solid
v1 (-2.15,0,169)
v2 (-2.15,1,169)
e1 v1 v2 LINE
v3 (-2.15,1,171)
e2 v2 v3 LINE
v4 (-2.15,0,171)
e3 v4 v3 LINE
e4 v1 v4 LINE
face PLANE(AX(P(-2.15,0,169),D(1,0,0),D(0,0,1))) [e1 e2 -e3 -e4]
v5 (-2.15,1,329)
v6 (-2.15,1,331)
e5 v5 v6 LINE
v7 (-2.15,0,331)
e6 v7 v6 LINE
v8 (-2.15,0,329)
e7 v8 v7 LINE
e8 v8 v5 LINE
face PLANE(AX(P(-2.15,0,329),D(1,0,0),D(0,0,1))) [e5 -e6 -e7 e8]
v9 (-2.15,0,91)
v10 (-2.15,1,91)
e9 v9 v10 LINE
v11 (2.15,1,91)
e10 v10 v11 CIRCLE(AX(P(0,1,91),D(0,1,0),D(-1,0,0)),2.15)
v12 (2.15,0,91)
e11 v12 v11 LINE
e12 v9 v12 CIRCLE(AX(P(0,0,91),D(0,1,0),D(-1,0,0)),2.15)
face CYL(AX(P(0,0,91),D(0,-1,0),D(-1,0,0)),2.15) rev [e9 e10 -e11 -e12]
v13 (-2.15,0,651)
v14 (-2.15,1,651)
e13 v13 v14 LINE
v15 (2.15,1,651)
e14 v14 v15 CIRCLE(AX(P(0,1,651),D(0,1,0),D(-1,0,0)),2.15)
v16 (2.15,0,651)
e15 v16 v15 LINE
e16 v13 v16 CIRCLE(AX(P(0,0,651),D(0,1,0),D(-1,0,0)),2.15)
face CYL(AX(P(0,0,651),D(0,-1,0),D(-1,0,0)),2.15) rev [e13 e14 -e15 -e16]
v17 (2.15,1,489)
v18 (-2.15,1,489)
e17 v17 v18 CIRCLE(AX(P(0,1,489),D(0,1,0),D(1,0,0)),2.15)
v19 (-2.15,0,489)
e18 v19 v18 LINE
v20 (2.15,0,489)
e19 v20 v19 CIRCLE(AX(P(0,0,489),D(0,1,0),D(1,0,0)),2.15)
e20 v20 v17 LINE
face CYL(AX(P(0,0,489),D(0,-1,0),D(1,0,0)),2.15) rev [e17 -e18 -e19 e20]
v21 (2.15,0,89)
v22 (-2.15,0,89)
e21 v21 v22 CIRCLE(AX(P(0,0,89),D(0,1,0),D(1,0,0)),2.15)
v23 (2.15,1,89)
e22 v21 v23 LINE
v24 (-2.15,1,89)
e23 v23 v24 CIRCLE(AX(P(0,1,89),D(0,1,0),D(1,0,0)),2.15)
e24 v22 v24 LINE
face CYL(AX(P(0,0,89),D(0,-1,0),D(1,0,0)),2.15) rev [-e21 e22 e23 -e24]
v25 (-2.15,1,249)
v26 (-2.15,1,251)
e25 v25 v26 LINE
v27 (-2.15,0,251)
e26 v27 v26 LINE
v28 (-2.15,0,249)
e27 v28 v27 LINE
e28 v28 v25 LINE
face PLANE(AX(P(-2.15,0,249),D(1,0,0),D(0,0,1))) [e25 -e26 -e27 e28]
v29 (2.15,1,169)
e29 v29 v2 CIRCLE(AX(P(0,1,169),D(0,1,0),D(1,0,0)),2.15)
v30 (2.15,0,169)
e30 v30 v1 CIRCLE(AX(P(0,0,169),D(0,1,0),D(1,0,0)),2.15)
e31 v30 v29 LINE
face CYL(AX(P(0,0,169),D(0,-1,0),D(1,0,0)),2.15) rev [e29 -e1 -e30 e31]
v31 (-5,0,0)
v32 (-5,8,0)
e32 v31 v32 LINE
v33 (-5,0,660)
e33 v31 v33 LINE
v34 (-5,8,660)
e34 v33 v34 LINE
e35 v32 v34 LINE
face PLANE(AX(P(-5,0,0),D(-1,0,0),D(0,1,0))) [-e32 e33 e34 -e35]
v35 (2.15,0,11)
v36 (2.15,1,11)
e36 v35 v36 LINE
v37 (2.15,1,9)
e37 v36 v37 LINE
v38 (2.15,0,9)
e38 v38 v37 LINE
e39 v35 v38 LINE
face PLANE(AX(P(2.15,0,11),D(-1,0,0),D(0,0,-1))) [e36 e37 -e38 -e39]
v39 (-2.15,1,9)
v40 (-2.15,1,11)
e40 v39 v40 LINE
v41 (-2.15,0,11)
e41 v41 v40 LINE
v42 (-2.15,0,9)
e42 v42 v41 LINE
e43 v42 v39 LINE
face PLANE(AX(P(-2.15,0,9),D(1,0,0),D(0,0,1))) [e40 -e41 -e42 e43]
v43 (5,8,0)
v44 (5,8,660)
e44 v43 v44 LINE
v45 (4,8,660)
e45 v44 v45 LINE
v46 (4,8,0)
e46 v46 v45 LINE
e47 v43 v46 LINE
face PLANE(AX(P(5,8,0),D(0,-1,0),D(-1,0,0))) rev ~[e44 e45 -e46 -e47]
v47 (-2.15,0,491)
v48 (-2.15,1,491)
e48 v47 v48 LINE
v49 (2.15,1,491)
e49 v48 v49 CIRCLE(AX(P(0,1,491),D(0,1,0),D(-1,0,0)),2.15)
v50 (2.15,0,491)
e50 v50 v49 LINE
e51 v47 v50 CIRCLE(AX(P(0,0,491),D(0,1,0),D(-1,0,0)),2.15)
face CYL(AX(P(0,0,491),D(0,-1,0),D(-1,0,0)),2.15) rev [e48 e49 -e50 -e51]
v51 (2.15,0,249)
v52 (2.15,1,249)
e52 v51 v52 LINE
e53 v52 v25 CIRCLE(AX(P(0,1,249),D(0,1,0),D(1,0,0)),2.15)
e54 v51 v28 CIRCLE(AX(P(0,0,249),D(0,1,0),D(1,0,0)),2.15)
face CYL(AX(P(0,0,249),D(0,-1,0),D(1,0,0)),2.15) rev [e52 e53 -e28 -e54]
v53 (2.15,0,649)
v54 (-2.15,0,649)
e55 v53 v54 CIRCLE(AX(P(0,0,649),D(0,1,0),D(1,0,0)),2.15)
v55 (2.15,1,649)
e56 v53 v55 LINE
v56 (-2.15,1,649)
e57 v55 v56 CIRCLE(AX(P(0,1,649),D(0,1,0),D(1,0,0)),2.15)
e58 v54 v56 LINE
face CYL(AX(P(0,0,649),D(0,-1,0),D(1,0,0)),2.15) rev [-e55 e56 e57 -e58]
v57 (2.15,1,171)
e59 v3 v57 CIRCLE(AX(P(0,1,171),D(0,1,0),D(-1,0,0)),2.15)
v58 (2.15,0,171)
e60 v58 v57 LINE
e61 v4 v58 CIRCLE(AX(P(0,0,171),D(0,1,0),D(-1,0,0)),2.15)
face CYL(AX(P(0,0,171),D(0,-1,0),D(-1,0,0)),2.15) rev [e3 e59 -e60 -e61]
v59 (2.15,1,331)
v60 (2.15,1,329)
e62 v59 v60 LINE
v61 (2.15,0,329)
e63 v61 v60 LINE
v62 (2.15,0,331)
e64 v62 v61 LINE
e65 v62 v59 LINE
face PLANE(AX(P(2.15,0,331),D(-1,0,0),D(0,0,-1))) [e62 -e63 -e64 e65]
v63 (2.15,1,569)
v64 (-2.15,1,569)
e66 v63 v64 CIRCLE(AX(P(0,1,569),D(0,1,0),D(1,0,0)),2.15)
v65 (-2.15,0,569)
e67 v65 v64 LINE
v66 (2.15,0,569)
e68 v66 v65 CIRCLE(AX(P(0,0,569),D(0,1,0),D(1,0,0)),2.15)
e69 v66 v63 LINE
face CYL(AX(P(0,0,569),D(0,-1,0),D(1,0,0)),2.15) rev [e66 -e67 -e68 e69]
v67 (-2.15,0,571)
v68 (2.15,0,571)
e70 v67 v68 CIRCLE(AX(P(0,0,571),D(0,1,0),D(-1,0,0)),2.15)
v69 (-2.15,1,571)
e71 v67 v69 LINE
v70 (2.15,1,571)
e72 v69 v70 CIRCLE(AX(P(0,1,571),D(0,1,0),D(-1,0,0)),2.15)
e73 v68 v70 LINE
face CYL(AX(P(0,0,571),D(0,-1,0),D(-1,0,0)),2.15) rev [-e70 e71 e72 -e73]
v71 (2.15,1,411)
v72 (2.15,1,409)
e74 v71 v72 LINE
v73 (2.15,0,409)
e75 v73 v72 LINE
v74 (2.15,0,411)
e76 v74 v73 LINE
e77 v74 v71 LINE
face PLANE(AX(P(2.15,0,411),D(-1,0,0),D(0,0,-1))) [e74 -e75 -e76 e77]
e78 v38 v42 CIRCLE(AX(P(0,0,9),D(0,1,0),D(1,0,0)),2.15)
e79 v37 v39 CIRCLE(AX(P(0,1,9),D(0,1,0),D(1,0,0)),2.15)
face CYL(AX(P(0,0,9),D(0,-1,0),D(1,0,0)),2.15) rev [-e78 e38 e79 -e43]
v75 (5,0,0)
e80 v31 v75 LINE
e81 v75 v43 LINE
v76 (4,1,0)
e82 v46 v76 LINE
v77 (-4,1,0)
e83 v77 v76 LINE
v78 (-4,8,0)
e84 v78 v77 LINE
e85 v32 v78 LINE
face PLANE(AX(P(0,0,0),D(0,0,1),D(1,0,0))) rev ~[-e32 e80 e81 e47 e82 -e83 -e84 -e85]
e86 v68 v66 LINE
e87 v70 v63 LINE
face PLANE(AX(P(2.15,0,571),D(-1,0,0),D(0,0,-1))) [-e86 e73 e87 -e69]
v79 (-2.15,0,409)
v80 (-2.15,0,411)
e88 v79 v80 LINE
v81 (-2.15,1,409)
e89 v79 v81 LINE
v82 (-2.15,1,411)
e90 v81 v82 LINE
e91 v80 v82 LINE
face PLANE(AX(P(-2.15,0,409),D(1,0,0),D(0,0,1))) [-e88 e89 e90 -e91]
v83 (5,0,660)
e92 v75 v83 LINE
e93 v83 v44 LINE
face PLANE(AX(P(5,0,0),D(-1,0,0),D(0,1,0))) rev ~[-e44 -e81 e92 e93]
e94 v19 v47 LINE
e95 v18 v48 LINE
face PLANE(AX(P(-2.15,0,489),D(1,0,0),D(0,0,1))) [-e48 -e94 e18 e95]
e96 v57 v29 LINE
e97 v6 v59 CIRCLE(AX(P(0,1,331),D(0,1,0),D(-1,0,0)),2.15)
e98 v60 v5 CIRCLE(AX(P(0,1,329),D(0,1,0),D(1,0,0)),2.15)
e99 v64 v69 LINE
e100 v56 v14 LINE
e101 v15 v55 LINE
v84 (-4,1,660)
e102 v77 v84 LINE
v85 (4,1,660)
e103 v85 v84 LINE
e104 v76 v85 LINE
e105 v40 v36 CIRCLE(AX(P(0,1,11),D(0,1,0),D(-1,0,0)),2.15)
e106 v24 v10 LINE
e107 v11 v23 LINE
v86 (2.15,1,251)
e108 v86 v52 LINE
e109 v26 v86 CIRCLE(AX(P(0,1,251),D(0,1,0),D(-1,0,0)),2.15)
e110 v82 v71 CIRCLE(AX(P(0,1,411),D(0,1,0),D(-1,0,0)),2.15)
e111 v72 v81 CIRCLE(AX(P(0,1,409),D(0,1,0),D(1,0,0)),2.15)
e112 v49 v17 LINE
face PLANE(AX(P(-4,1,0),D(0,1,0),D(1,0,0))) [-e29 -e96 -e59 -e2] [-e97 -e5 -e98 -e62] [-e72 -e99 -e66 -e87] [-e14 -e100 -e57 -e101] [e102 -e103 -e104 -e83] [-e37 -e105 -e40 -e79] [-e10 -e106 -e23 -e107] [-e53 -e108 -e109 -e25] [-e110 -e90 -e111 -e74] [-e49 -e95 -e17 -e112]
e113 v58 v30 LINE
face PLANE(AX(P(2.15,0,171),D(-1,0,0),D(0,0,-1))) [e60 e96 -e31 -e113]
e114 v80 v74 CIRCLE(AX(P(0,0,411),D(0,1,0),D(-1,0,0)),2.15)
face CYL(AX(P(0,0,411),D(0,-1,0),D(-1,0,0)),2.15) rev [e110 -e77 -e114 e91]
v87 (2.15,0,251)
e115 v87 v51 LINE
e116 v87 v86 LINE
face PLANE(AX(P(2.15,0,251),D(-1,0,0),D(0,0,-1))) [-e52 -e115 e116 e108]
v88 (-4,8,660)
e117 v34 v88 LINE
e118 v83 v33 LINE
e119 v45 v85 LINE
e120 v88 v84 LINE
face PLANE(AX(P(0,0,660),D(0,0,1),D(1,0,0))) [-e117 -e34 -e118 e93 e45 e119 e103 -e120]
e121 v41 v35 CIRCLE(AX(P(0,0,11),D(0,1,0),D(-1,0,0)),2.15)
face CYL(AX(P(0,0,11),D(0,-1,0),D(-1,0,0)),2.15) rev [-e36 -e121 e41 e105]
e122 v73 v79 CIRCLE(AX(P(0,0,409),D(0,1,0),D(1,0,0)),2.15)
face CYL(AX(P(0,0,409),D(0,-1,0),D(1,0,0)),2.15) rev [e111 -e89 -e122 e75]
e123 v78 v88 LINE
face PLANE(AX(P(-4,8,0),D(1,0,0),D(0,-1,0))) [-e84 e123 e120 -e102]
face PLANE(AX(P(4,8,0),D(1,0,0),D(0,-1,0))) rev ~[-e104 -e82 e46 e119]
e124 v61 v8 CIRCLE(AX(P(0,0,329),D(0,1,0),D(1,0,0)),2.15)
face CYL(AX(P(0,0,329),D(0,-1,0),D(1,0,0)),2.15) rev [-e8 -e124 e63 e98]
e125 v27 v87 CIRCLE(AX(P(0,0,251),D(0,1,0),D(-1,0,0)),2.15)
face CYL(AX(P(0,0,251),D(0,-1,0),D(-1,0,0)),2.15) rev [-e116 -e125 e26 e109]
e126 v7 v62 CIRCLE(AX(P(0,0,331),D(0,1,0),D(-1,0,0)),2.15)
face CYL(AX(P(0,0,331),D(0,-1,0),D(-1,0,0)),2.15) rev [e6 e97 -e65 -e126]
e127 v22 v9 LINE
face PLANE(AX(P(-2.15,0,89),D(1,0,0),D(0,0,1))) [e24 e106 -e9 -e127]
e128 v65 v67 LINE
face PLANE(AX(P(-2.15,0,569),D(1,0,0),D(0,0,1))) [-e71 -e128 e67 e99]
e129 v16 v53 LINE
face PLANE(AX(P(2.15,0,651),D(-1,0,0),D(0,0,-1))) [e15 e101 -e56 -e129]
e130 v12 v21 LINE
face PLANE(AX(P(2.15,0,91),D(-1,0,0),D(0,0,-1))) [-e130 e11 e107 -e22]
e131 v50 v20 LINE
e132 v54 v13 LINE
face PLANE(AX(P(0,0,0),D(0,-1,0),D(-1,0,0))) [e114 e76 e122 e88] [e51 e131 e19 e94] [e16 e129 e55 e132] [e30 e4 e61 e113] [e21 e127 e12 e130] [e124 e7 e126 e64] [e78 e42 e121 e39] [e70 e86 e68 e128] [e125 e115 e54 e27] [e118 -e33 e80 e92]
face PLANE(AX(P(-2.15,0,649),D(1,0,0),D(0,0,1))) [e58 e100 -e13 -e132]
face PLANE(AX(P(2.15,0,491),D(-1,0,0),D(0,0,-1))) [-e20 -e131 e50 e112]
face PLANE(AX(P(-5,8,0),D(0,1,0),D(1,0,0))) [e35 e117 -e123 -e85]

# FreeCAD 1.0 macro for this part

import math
import FreeCAD as App
import Part
import Sketcher
Q = App.Units.Quantity

doc = App.newDocument("Part")
body = doc.addObject("PartDesign::Body", "Body")

# Sketch on XY plane
sketch1 = body.newObject("Sketcher::SketchObject", "Sketch")
sketch1.AttachmentSupport = (doc.getObject("XY_Plane"), [""])
sketch1.MapMode = "FlatFace"
sketch1.addGeometry([
    Part.LineSegment(App.Vector(-5, 0, 0), App.Vector(5, 0, 0)),  # 0
    Part.LineSegment(App.Vector(5, 0, 0), App.Vector(5, 8, 0)),  # 1
    Part.LineSegment(App.Vector(5, 8, 0), App.Vector(4, 8, 0)),  # 2
    Part.LineSegment(App.Vector(4, 8, 0), App.Vector(4, 1, 0)),  # 3
    Part.LineSegment(App.Vector(4, 1, 0), App.Vector(-4, 1, 0)),  # 4
    Part.LineSegment(App.Vector(-4, 1, 0), App.Vector(-4, 8, 0)),  # 5
    Part.LineSegment(App.Vector(-4, 8, 0), App.Vector(-5, 8, 0)),  # 6
    Part.LineSegment(App.Vector(-5, 8, 0), App.Vector(-5, 0, 0)),  # 7
], False)
sketch1.addConstraint([
    Sketcher.Constraint("Coincident", 0, 2, 1, 1),
    Sketcher.Constraint("Coincident", 1, 2, 2, 1),
    Sketcher.Constraint("Coincident", 2, 2, 3, 1),
    Sketcher.Constraint("Coincident", 3, 2, 4, 1),
    Sketcher.Constraint("Coincident", 4, 2, 5, 1),
    Sketcher.Constraint("Coincident", 5, 2, 6, 1),
    Sketcher.Constraint("Coincident", 6, 2, 7, 1),
    Sketcher.Constraint("Coincident", 7, 2, 0, 1),
    Sketcher.Constraint("Horizontal", 0),
    Sketcher.Constraint("Vertical", 1),
    Sketcher.Constraint("Horizontal", 2),
    Sketcher.Constraint("Vertical", 3),
    Sketcher.Constraint("Horizontal", 4),
    Sketcher.Constraint("Vertical", 5),
    Sketcher.Constraint("Horizontal", 6),
    Sketcher.Constraint("Vertical", 7),
    Sketcher.Constraint("Symmetric", 0, 2, 7, 2, -1, 1),
    Sketcher.Constraint("Symmetric", 2, 2, 5, 2, -2),
    Sketcher.Constraint("Equal", 4, 1),
    Sketcher.Constraint("DistanceX", 2, 2, 2, 1, Q("1 mm")),
    Sketcher.Constraint("DistanceX", 4, 2, 4, 1, Q("8 mm")),
    Sketcher.Constraint("DistanceY", -1, 1, 3, 2, Q("1 mm")),
])
pad1 = body.newObject("PartDesign::Pad", "Pad")
pad1.Profile = sketch1
pad1.Length = 660

# Sketch on XZ plane
sketch2 = body.newObject("Sketcher::SketchObject", "Sketch001")
sketch2.AttachmentSupport = (doc.getObject("XZ_Plane"), [""])
sketch2.MapMode = "FlatFace"
sketch2.addGeometry([
    Part.ArcOfCircle(Part.Circle(App.Vector(0, 651, 0), App.Vector(0, 0, 1), 2.15), math.radians(0), math.radians(180)),  # 0
    Part.LineSegment(App.Vector(2.15, 651, 0), App.Vector(2.15, 649, 0)),  # 1
    Part.ArcOfCircle(Part.Circle(App.Vector(0, 649, 0), App.Vector(0, 0, 1), 2.15), math.radians(180), math.radians(360)),  # 2
    Part.LineSegment(App.Vector(-2.15, 649, 0), App.Vector(-2.15, 651, 0)),  # 3
    Part.ArcOfCircle(Part.Circle(App.Vector(0, 571, 0), App.Vector(0, 0, 1), 2.15), math.radians(0), math.radians(180)),  # 4
    Part.LineSegment(App.Vector(2.15, 571, 0), App.Vector(2.15, 569, 0)),  # 5
    Part.ArcOfCircle(Part.Circle(App.Vector(0, 569, 0), App.Vector(0, 0, 1), 2.15), math.radians(180), math.radians(360)),  # 6
    Part.LineSegment(App.Vector(-2.15, 569, 0), App.Vector(-2.15, 571, 0)),  # 7
    Part.ArcOfCircle(Part.Circle(App.Vector(0, 491, 0), App.Vector(0, 0, 1), 2.15), math.radians(0), math.radians(180)),  # 8
    Part.LineSegment(App.Vector(2.15, 491, 0), App.Vector(2.15, 489, 0)),  # 9
    Part.ArcOfCircle(Part.Circle(App.Vector(0, 489, 0), App.Vector(0, 0, 1), 2.15), math.radians(180), math.radians(360)),  # 10
    Part.LineSegment(App.Vector(-2.15, 489, 0), App.Vector(-2.15, 491, 0)),  # 11
    Part.ArcOfCircle(Part.Circle(App.Vector(0, 411, 0), App.Vector(0, 0, 1), 2.15), math.radians(0), math.radians(180)),  # 12
    Part.LineSegment(App.Vector(2.15, 411, 0), App.Vector(2.15, 409, 0)),  # 13
    Part.ArcOfCircle(Part.Circle(App.Vector(0, 409, 0), App.Vector(0, 0, 1), 2.15), math.radians(180), math.radians(360)),  # 14
    Part.LineSegment(App.Vector(-2.15, 409, 0), App.Vector(-2.15, 411, 0)),  # 15
    Part.ArcOfCircle(Part.Circle(App.Vector(0, 331, 0), App.Vector(0, 0, 1), 2.15), math.radians(0), math.radians(180)),  # 16
    Part.LineSegment(App.Vector(2.15, 331, 0), App.Vector(2.15, 329, 0)),  # 17
    Part.ArcOfCircle(Part.Circle(App.Vector(0, 329, 0), App.Vector(0, 0, 1), 2.15), math.radians(180), math.radians(360)),  # 18
    Part.LineSegment(App.Vector(-2.15, 329, 0), App.Vector(-2.15, 331, 0)),  # 19
    Part.ArcOfCircle(Part.Circle(App.Vector(0, 251, 0), App.Vector(0, 0, 1), 2.15), math.radians(0), math.radians(180)),  # 20
    Part.LineSegment(App.Vector(2.15, 251, 0), App.Vector(2.15, 249, 0)),  # 21
    Part.ArcOfCircle(Part.Circle(App.Vector(0, 249, 0), App.Vector(0, 0, 1), 2.15), math.radians(180), math.radians(360)),  # 22
    Part.LineSegment(App.Vector(-2.15, 249, 0), App.Vector(-2.15, 251, 0)),  # 23
    Part.ArcOfCircle(Part.Circle(App.Vector(0, 171, 0), App.Vector(0, 0, 1), 2.15), math.radians(0), math.radians(180)),  # 24
    Part.LineSegment(App.Vector(2.15, 171, 0), App.Vector(2.15, 169, 0)),  # 25
    Part.ArcOfCircle(Part.Circle(App.Vector(0, 169, 0), App.Vector(0, 0, 1), 2.15), math.radians(180), math.radians(360)),  # 26
    Part.LineSegment(App.Vector(-2.15, 169, 0), App.Vector(-2.15, 171, 0)),  # 27
    Part.ArcOfCircle(Part.Circle(App.Vector(0, 91, 0), App.Vector(0, 0, 1), 2.15), math.radians(0), math.radians(180)),  # 28
    Part.LineSegment(App.Vector(2.15, 91, 0), App.Vector(2.15, 89, 0)),  # 29
    Part.ArcOfCircle(Part.Circle(App.Vector(0, 89, 0), App.Vector(0, 0, 1), 2.15), math.radians(180), math.radians(360)),  # 30
    Part.LineSegment(App.Vector(-2.15, 89, 0), App.Vector(-2.15, 91, 0)),  # 31
    Part.ArcOfCircle(Part.Circle(App.Vector(0, 11, 0), App.Vector(0, 0, 1), 2.15), math.radians(0), math.radians(180)),  # 32
    Part.LineSegment(App.Vector(2.15, 11, 0), App.Vector(2.15, 9, 0)),  # 33
    Part.ArcOfCircle(Part.Circle(App.Vector(0, 9, 0), App.Vector(0, 0, 1), 2.15), math.radians(180), math.radians(360)),  # 34
    Part.LineSegment(App.Vector(-2.15, 9, 0), App.Vector(-2.15, 11, 0)),  # 35
], False)
sketch2.addConstraint([
    Sketcher.Constraint("Tangent", 0, 1, 1, 1),
    Sketcher.Constraint("Tangent", 1, 2, 2, 2),
    Sketcher.Constraint("Tangent", 2, 1, 3, 1),
    Sketcher.Constraint("Tangent", 3, 2, 0, 2),
    Sketcher.Constraint("Tangent", 4, 1, 5, 1),
    Sketcher.Constraint("Tangent", 5, 2, 6, 2),
    Sketcher.Constraint("Tangent", 6, 1, 7, 1),
    Sketcher.Constraint("Tangent", 7, 2, 4, 2),
    Sketcher.Constraint("Tangent", 8, 1, 9, 1),
    Sketcher.Constraint("Tangent", 9, 2, 10, 2),
    Sketcher.Constraint("Tangent", 10, 1, 11, 1),
    Sketcher.Constraint("Tangent", 11, 2, 8, 2),
    Sketcher.Constraint("Tangent", 12, 1, 13, 1),
    Sketcher.Constraint("Tangent", 13, 2, 14, 2),
    Sketcher.Constraint("Tangent", 14, 1, 15, 1),
    Sketcher.Constraint("Tangent", 15, 2, 12, 2),
    Sketcher.Constraint("Tangent", 16, 1, 17, 1),
    Sketcher.Constraint("Tangent", 17, 2, 18, 2),
    Sketcher.Constraint("Tangent", 18, 1, 19, 1),
    Sketcher.Constraint("Tangent", 19, 2, 16, 2),
    Sketcher.Constraint("Tangent", 20, 1, 21, 1),
    Sketcher.Constraint("Tangent", 21, 2, 22, 2),
    Sketcher.Constraint("Tangent", 22, 1, 23, 1),
    Sketcher.Constraint("Tangent", 23, 2, 20, 2),
    Sketcher.Constraint("Tangent", 24, 1, 25, 1),
    Sketcher.Constraint("Tangent", 25, 2, 26, 2),
    Sketcher.Constraint("Tangent", 26, 1, 27, 1),
    Sketcher.Constraint("Tangent", 27, 2, 24, 2),
    Sketcher.Constraint("Tangent", 28, 1, 29, 1),
    Sketcher.Constraint("Tangent", 29, 2, 30, 2),
    Sketcher.Constraint("Tangent", 30, 1, 31, 1),
    Sketcher.Constraint("Tangent", 31, 2, 28, 2),
    Sketcher.Constraint("Tangent", 32, 1, 33, 1),
    Sketcher.Constraint("Tangent", 33, 2, 34, 2),
    Sketcher.Constraint("Tangent", 34, 1, 35, 1),
    Sketcher.Constraint("Tangent", 35, 2, 32, 2),
    Sketcher.Constraint("Vertical", 1),
    Sketcher.Constraint("Vertical", 3),
    Sketcher.Constraint("Vertical", 5),
    Sketcher.Constraint("Vertical", 7),
    Sketcher.Constraint("Vertical", 9),
    Sketcher.Constraint("Vertical", 11),
    Sketcher.Constraint("Vertical", 13),
    Sketcher.Constraint("Vertical", 15),
    Sketcher.Constraint("Vertical", 17),
    Sketcher.Constraint("Vertical", 19),
    Sketcher.Constraint("Vertical", 21),
    Sketcher.Constraint("Vertical", 23),
    Sketcher.Constraint("Vertical", 25),
    Sketcher.Constraint("Vertical", 27),
    Sketcher.Constraint("Vertical", 29),
    Sketcher.Constraint("Vertical", 31),
    Sketcher.Constraint("Vertical", 33),
    Sketcher.Constraint("Vertical", 35),
    Sketcher.Constraint("Equal", 2, 4),
    Sketcher.Constraint("Equal", 6, 8),
    Sketcher.Constraint("Equal", 10, 12),
    Sketcher.Constraint("Equal", 14, 16),
    Sketcher.Constraint("Equal", 18, 20),
    Sketcher.Constraint("Equal", 22, 24),
    Sketcher.Constraint("Equal", 26, 28),
    Sketcher.Constraint("Equal", 30, 32),
    Sketcher.Constraint("PointOnObject", 0, 3, -2),
    Sketcher.Constraint("PointOnObject", 4, 3, -2),
    Sketcher.Constraint("PointOnObject", 8, 3, -2),
    Sketcher.Constraint("PointOnObject", 12, 3, -2),
    Sketcher.Constraint("PointOnObject", 16, 3, -2),
    Sketcher.Constraint("PointOnObject", 20, 3, -2),
    Sketcher.Constraint("PointOnObject", 24, 3, -2),
    Sketcher.Constraint("PointOnObject", 28, 3, -2),
    Sketcher.Constraint("PointOnObject", 32, 3, -2),
    Sketcher.Constraint("Equal", 3, 5),
    Sketcher.Constraint("Equal", 7, 9),
    Sketcher.Constraint("Equal", 11, 13),
    Sketcher.Constraint("Equal", 15, 17),
    Sketcher.Constraint("Equal", 19, 21),
    Sketcher.Constraint("Equal", 23, 25),
    Sketcher.Constraint("Equal", 27, 29),
    Sketcher.Constraint("Equal", 31, 33),
    Sketcher.Constraint("Radius", 0, Q("2.15 mm")),
    Sketcher.Constraint("DistanceY", 4, 3, 0, 3, Q("80 mm")),
    Sketcher.Constraint("DistanceY", 8, 3, 4, 3, Q("80 mm")),
    Sketcher.Constraint("DistanceY", 12, 3, 8, 3, Q("80 mm")),
    Sketcher.Constraint("DistanceY", 16, 3, 12, 3, Q("80 mm")),
    Sketcher.Constraint("DistanceY", 20, 3, 16, 3, Q("80 mm")),
    Sketcher.Constraint("DistanceY", 24, 3, 20, 3, Q("80 mm")),
    Sketcher.Constraint("DistanceY", 28, 3, 24, 3, Q("80 mm")),
    Sketcher.Constraint("DistanceY", 32, 3, 28, 3, Q("80 mm")),
    Sketcher.Constraint("DistanceY", 1, 2, 1, 1, Q("2 mm")),
    Sketcher.Constraint("DistanceY", -1, 1, 0, 3, Q("651 mm")),
])
pocket1 = body.newObject("PartDesign::Pocket", "Pocket")
pocket1.Profile = sketch2
pocket1.Length = 1

doc.recompute()
